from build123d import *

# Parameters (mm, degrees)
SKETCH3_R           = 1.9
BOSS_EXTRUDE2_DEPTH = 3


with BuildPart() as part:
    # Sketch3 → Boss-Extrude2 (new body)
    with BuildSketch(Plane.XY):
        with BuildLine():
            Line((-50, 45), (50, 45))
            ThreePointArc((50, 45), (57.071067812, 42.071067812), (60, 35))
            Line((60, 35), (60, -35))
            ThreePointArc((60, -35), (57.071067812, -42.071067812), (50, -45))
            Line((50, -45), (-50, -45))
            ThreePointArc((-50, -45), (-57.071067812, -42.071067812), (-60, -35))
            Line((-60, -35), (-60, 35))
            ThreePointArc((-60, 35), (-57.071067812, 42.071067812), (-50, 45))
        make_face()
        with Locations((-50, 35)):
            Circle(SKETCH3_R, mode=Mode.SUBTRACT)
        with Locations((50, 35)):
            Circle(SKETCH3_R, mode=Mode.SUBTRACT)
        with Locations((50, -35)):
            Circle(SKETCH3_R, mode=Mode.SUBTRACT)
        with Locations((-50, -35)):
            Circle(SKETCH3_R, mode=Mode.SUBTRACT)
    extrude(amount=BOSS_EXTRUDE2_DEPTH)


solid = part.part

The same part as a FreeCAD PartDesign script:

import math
import FreeCAD as App
import Part
import Sketcher
from FreeCAD import Vector
Q = App.Units.Quantity

doc = App.newDocument("Part")
params = doc.addObject("Spreadsheet::Sheet", "Params")
for row, (alias, value) in enumerate([
    ("sketch1_radius", "10 mm"),
    ("sketch1_diameter", "3.8 mm"),
    ("sketch1_width", "100 mm"),
    ("sketch1_height", "70 mm"),
    ("pad1_length", "3 mm"),
], start=1):
    params.set(f"A{row}", alias)
    params.set(f"B{row}", "=" + value)
    params.setAlias(f"B{row}", alias)

body = doc.addObject("PartDesign::Body", "Body")

# Sketch on XY plane
sketch1 = body.newObject("Sketcher::SketchObject", "Sketch")
sketch1.AttachmentSupport = (doc.getObject("XY_Plane"), [""])
sketch1.MapMode = "FlatFace"
sketch1.addGeometry([
    Part.LineSegment(Vector(50, 45, 0), Vector(-50, 45, 0)),  # 0
    Part.ArcOfCircle(Part.Circle(Vector(-50, 35, 0), Vector(0, 0, 1), 10), math.radians(90), math.radians(180)),  # 1
    Part.LineSegment(Vector(-60, 35, 0), Vector(-60, -35, 0)),  # 2
    Part.ArcOfCircle(Part.Circle(Vector(-50, -35, 0), Vector(0, 0, 1), 10), math.radians(180), math.radians(270)),  # 3
    Part.LineSegment(Vector(-50, -45, 0), Vector(50, -45, 0)),  # 4
    Part.ArcOfCircle(Part.Circle(Vector(50, -35, 0), Vector(0, 0, 1), 10), math.radians(-90), math.radians(0)),  # 5
    Part.LineSegment(Vector(60, -35, 0), Vector(60, 35, 0)),  # 6
    Part.ArcOfCircle(Part.Circle(Vector(50, 35, 0), Vector(0, 0, 1), 10), math.radians(0), math.radians(90)),  # 7
    Part.Circle(Vector(50, -35, 0), Vector(0, 0, 1), 1.9),  # 8
    Part.Circle(Vector(-50, -35, 0), Vector(0, 0, 1), 1.9),  # 9
    Part.Circle(Vector(50, 35, 0), Vector(0, 0, 1), 1.9),  # 10
    Part.Circle(Vector(-50, 35, 0), Vector(0, 0, 1), 1.9),  # 11
], False)
sketch1.addConstraint([
    Sketcher.Constraint("Tangent", 0, 2, 1, 1),
    Sketcher.Constraint("Tangent", 1, 2, 2, 1),
    Sketcher.Constraint("Tangent", 2, 2, 3, 1),
    Sketcher.Constraint("Tangent", 3, 2, 4, 1),
    Sketcher.Constraint("Tangent", 4, 2, 5, 1),
    Sketcher.Constraint("Tangent", 5, 2, 6, 1),
    Sketcher.Constraint("Tangent", 6, 2, 7, 1),
    Sketcher.Constraint("Tangent", 7, 2, 0, 1),
    Sketcher.Constraint("Horizontal", 0),
    Sketcher.Constraint("Vertical", 2),
    Sketcher.Constraint("Horizontal", 4),
    Sketcher.Constraint("Vertical", 6),
    Sketcher.Constraint("Coincident", 8, 3, 5, 3),
    Sketcher.Constraint("Coincident", 9, 3, 3, 3),
    Sketcher.Constraint("Coincident", 10, 3, 7, 3),
    Sketcher.Constraint("Coincident", 11, 3, 1, 3),
    Sketcher.Constraint("Equal", 1, 3),
    Sketcher.Constraint("Equal", 3, 5),
    Sketcher.Constraint("Equal", 5, 7),
    Sketcher.Constraint("Equal", 8, 9),
    Sketcher.Constraint("Equal", 9, 10),
    Sketcher.Constraint("Equal", 10, 11),
    Sketcher.Constraint("Symmetric", 1, 3, 5, 3, -1, 1),
    Sketcher.Constraint("Radius", 1, Q("10 mm")),
    Sketcher.Constraint("Diameter", 8, Q("3.8 mm")),
    Sketcher.Constraint("DistanceX", 0, 2, 0, 1, Q("100 mm")),
    Sketcher.Constraint("DistanceY", 2, 2, 2, 1, Q("70 mm")),
])
sketch1.setExpression("Constraints[23]", "Params.sketch1_radius")
sketch1.setExpression("Constraints[24]", "Params.sketch1_diameter")
sketch1.setExpression("Constraints[25]", "Params.sketch1_width")
sketch1.setExpression("Constraints[26]", "Params.sketch1_height")
pad1 = body.newObject("PartDesign::Pad", "Pad")
pad1.Profile = sketch1
pad1.setExpression("Length", "Params.pad1_length")

doc.recompute()
